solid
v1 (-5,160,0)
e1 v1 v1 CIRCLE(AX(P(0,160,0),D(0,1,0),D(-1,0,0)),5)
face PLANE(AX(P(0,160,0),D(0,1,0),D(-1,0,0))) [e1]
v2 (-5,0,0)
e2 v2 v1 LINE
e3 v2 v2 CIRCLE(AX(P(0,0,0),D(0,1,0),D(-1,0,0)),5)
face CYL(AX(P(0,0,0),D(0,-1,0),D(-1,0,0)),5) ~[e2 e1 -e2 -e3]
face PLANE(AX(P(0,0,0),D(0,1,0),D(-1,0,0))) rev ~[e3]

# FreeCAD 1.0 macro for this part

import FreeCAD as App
import Part
import Sketcher
Q = App.Units.Quantity

doc = App.newDocument("Part")
body = doc.addObject("PartDesign::Body", "Body")

# Sketch on XZ plane
sketch1 = doc.addObject("Sketcher::SketchObject", "Sketch")
body.addObject(sketch1)
sketch1.AttachmentSupport = (doc.XZ_Plane, [""])
sketch1.MapMode = "FlatFace"
sketch1.addGeometry(Part.Circle(App.Vector(0, 0, 0), App.Vector(0, 0, 1), 5), False)
sketch1.addConstraint([
    Sketcher.Constraint("Coincident", 0, 3, -1, 1),
    Sketcher.Constraint("Diameter", 0, Q("10 mm")),
])
pad1 = doc.addObject("PartDesign::Pad", "Pad")
body.addObject(pad1)
pad1.Profile = sketch1
pad1.Length = 160
pad1.Reversed = True

doc.recompute()
